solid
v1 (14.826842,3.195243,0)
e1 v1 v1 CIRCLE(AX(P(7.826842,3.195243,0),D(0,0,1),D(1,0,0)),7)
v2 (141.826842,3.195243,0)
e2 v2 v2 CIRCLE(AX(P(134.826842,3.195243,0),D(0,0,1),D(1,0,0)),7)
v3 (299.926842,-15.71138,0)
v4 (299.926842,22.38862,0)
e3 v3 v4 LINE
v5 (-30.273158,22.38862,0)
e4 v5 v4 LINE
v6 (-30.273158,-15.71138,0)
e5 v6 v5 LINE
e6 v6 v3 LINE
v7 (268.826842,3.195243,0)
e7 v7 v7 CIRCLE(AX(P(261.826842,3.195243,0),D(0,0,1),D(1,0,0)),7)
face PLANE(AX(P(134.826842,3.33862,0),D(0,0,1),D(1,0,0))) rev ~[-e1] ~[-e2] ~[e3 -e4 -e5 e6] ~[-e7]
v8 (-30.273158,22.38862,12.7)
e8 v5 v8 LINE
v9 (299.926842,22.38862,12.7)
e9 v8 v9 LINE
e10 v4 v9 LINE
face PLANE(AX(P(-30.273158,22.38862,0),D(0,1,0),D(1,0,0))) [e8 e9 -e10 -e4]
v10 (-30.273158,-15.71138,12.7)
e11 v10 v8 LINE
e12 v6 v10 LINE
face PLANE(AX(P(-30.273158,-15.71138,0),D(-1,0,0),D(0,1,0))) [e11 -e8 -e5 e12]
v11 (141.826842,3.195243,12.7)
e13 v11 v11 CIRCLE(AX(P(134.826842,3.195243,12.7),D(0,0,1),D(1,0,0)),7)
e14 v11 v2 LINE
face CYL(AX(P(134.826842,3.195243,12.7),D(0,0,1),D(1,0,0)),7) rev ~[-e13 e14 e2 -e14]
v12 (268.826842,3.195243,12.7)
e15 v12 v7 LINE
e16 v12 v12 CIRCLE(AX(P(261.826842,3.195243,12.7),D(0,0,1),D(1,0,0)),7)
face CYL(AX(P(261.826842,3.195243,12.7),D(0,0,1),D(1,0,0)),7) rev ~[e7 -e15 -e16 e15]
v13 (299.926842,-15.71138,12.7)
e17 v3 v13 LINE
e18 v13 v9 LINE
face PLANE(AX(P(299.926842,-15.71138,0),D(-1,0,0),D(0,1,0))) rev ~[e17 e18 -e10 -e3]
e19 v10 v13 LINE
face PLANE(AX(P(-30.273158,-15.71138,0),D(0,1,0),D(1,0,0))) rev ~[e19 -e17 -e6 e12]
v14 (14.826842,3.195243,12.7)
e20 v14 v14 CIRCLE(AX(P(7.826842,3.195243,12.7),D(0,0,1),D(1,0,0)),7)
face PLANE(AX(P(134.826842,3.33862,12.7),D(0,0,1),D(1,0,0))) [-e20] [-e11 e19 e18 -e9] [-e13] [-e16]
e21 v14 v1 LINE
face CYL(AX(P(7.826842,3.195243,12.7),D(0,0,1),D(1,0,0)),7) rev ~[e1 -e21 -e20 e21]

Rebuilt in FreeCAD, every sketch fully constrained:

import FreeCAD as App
import Part
import Sketcher

V = App.Vector
Q = App.Units.Quantity


def add_polygon(sketch, points):
    """Adds a closed chain of lines whose ends are joined by coincident constraints."""
    first, n = sketch.GeometryCount, len(points)
    for a, b in zip(points, points[1:] + points[:1]):
        sketch.addGeometry(Part.LineSegment(App.Vector(*a, 0), App.Vector(*b, 0)), False)
    for i in range(n):
        sketch.addConstraint(Sketcher.Constraint("Coincident", first + i, 2, first + (i + 1) % n, 1))

doc = App.newDocument("Part")
params = doc.addObject("Spreadsheet::Sheet", "Params")
for row, (alias, value) in enumerate([
    ("sketch1_width", "13 in"),
    ("sketch1_height", "1.5 in"),
    ("pad1_length", "0.5 in"),
], start=1):
    params.set(f"A{row}", alias)
    params.set(f"B{row}", "=" + value)
    params.setAlias(f"B{row}", alias)

body = doc.addObject("PartDesign::Body", "Body")

sketch1 = body.newObject("Sketcher::SketchObject", "Sketch")
sketch1.AttachmentSupport = (doc.getObject("XY_Plane"), [""])
sketch1.MapMode = "FlatFace"
add_polygon(sketch1, [(-30, 22), (-30, -16), (300, -16), (300, 22)])
sketch1.addConstraint([
    Sketcher.Constraint("Vertical", 0),
    Sketcher.Constraint("Horizontal", 1),
    Sketcher.Constraint("Vertical", 2),
    Sketcher.Constraint("Horizontal", 3),
    Sketcher.Constraint("DistanceX", 1, 1, 1, 2, Q("13 in")),
    Sketcher.Constraint("DistanceY", 0, 2, 0, 1, Q("1.5 in")),
    Sketcher.Constraint("DistanceY", 0, 2, -1, 1, 15.71138),
    Sketcher.Constraint("DistanceX", -1, 1, 1, 2, 299.926842),
])
sketch1.setExpression("Constraints[8]", "Params.sketch1_width")
sketch1.setExpression("Constraints[9]", "Params.sketch1_height")
pad1 = body.newObject("PartDesign::Pad", "Pad")
pad1.Profile = sketch1
pad1.setExpression("Length", "Params.pad1_length")

sketch2 = body.newObject("Sketcher::SketchObject", "Sketch001")
sketch2.AttachmentSupport = (doc.getObject("XY_Plane"), [""])
sketch2.MapMode = "FlatFace"
sketch2.AttachmentOffset = App.Placement(V(0, 0, 0.5 * 25.4), App.Rotation())
sketch2.addGeometry([
    Part.Circle(V(8, 3, 0), V(0, 0, 1), 7),
    Part.Circle(V(135, 3, 0), V(0, 0, 1), 7),
    Part.Circle(V(262, 3, 0), V(0, 0, 1), 7),
], False)
sketch2.addConstraint([
    Sketcher.Constraint("Equal", 0, 1),
    Sketcher.Constraint("Equal", 1, 2),
    Sketcher.Constraint("Horizontal", 0, 3, 1, 3),
    Sketcher.Constraint("Horizontal", 1, 3, 2, 3),
    Sketcher.Constraint("DistanceX", 0, 3, 1, 3, Q("5 in")),
    Sketcher.Constraint("DistanceX", 1, 3, 2, 3, Q("5 in")),
    Sketcher.Constraint("Diameter", 0, 14.0),
    Sketcher.Constraint("DistanceX", -1, 1, 1, 3, 134.826842),
    Sketcher.Constraint("DistanceY", -1, 1, 0, 3, 3.195243),
])
pocket1 = body.newObject("PartDesign::Pocket", "Pocket")
pocket1.Profile = sketch2
pocket1.Type = "ThroughAll"

doc.recompute()
